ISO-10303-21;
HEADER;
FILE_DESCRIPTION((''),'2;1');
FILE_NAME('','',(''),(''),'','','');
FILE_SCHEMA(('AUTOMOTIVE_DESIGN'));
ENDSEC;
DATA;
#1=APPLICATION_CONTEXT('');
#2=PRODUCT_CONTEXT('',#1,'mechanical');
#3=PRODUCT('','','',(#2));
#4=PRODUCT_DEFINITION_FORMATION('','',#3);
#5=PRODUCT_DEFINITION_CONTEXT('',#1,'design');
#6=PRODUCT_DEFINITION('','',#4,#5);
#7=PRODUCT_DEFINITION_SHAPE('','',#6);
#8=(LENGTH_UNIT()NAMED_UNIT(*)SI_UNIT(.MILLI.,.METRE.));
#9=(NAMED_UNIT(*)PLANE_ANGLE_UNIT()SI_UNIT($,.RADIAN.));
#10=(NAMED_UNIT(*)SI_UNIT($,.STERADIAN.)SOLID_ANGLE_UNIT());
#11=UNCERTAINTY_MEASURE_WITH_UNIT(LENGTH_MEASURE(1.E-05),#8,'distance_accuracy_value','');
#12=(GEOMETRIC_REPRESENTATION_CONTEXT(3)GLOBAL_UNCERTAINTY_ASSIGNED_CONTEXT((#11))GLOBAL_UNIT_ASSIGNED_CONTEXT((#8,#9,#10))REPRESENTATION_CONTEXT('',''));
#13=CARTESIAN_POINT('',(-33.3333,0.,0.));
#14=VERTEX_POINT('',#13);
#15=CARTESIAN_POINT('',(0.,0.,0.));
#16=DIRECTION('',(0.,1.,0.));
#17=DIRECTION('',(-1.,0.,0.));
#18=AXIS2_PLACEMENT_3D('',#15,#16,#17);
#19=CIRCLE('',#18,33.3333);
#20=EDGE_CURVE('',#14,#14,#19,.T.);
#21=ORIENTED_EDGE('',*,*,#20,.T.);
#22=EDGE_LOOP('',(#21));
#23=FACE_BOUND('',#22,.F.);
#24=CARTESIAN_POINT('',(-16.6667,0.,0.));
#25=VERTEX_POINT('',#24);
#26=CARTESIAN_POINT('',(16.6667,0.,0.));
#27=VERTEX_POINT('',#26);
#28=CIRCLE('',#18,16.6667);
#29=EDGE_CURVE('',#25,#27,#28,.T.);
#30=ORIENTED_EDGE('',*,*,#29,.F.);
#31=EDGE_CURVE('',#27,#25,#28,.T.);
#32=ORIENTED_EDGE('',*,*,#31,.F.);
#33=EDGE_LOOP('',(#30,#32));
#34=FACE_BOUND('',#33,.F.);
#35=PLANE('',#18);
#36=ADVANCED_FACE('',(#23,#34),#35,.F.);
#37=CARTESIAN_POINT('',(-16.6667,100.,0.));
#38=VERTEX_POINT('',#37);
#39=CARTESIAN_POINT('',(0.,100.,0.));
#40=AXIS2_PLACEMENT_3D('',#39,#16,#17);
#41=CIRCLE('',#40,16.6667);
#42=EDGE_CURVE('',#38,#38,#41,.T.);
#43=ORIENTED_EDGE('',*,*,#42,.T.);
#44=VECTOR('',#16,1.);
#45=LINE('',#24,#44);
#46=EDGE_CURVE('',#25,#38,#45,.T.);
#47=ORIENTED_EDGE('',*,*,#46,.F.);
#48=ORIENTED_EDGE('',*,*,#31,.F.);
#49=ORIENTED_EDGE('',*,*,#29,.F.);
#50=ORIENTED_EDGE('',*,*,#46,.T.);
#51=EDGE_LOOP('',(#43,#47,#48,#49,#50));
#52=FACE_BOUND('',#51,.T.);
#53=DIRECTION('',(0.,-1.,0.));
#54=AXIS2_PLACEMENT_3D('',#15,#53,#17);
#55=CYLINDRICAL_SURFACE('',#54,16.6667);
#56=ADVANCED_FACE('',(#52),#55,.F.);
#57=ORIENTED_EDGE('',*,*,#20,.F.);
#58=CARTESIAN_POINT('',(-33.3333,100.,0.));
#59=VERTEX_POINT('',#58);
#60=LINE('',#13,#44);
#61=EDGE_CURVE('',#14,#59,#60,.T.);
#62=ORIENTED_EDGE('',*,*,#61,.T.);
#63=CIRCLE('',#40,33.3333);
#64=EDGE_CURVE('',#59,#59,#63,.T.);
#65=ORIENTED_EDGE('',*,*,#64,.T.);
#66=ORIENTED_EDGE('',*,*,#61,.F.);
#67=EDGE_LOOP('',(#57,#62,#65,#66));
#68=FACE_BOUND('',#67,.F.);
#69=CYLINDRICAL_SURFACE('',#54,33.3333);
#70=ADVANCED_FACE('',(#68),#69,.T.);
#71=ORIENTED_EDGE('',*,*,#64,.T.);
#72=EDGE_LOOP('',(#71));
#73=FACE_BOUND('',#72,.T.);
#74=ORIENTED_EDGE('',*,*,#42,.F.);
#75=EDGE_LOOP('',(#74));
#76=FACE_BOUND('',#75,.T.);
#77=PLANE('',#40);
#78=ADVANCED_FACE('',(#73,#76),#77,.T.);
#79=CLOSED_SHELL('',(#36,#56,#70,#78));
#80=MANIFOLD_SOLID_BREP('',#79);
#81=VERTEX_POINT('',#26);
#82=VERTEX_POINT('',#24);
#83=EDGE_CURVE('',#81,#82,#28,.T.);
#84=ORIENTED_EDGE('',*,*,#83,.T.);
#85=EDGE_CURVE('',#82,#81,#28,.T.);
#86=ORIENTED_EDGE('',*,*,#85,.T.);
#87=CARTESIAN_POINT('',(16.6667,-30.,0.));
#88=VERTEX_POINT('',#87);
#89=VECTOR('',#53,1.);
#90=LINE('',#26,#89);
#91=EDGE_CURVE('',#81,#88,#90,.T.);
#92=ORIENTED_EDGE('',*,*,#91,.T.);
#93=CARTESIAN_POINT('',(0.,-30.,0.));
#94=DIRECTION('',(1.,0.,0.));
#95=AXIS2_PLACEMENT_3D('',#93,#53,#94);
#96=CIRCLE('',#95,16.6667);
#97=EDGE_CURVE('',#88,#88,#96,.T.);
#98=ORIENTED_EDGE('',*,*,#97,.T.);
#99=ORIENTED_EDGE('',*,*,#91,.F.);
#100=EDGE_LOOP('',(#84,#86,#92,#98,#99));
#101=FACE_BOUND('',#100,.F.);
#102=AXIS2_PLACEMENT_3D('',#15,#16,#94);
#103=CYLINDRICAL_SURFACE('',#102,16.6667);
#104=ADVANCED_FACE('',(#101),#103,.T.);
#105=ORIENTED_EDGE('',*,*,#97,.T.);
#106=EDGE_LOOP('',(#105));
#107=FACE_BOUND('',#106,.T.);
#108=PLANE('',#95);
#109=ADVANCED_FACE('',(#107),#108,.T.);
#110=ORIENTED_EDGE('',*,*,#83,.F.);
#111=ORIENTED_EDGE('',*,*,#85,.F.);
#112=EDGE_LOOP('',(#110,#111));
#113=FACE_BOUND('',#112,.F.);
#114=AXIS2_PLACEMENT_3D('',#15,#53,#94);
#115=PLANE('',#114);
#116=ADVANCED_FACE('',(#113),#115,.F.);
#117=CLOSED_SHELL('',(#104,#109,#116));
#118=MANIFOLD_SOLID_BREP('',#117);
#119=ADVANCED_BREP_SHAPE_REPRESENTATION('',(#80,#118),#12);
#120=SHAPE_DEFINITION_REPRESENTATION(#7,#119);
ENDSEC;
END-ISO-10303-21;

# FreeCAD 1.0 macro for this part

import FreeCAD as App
import Part
import Sketcher
Q = App.Units.Quantity

doc = App.newDocument("Part")
body = doc.addObject("PartDesign::Body", "Body")
body.AllowCompound = True

# Sketch on XZ plane
sketch1 = body.newObject("Sketcher::SketchObject", "Sketch")
sketch1.AttachmentSupport = (doc.getObject("XZ_Plane"), [""])
sketch1.MapMode = "FlatFace"
sketch1.addGeometry(Part.Circle(App.Vector(0, 0, 0), App.Vector(0, 0, 1), 33.3333), False)
sketch1.addGeometry(Part.Circle(App.Vector(0, 0, 0), App.Vector(0, 0, 1), 16.6667), False)
sketch1.addConstraint(Sketcher.Constraint("Coincident", 0, 3, -1, 1))
sketch1.addConstraint(Sketcher.Constraint("Coincident", 1, 3, -1, 1))
sketch1.addConstraint(Sketcher.Constraint("Diameter", 0, Q("66.6666 mm")))
sketch1.addConstraint(Sketcher.Constraint("Diameter", 1, Q("33.3334 mm")))
pad1 = body.newObject("PartDesign::Pad", "Pad")
pad1.Profile = sketch1
pad1.Length = Q("3.9370079 in")
pad1.Reversed = True

# Sketch on XZ plane
sketch2 = body.newObject("Sketcher::SketchObject", "Sketch001")
sketch2.AttachmentSupport = (doc.getObject("XZ_Plane"), [""])
sketch2.MapMode = "FlatFace"
sketch2.addGeometry(Part.Circle(App.Vector(0, 0, 0), App.Vector(0, 0, 1), 16.6667), False)
sketch2.addConstraint(Sketcher.Constraint("Coincident", 0, 3, -1, 1))
sketch2.addConstraint(Sketcher.Constraint("Diameter", 0, Q("33.3334 mm")))
pad2 = body.newObject("PartDesign::Pad", "Pad001")
pad2.Profile = sketch2
pad2.Length = Q("1.1811024 in")

doc.recompute()
